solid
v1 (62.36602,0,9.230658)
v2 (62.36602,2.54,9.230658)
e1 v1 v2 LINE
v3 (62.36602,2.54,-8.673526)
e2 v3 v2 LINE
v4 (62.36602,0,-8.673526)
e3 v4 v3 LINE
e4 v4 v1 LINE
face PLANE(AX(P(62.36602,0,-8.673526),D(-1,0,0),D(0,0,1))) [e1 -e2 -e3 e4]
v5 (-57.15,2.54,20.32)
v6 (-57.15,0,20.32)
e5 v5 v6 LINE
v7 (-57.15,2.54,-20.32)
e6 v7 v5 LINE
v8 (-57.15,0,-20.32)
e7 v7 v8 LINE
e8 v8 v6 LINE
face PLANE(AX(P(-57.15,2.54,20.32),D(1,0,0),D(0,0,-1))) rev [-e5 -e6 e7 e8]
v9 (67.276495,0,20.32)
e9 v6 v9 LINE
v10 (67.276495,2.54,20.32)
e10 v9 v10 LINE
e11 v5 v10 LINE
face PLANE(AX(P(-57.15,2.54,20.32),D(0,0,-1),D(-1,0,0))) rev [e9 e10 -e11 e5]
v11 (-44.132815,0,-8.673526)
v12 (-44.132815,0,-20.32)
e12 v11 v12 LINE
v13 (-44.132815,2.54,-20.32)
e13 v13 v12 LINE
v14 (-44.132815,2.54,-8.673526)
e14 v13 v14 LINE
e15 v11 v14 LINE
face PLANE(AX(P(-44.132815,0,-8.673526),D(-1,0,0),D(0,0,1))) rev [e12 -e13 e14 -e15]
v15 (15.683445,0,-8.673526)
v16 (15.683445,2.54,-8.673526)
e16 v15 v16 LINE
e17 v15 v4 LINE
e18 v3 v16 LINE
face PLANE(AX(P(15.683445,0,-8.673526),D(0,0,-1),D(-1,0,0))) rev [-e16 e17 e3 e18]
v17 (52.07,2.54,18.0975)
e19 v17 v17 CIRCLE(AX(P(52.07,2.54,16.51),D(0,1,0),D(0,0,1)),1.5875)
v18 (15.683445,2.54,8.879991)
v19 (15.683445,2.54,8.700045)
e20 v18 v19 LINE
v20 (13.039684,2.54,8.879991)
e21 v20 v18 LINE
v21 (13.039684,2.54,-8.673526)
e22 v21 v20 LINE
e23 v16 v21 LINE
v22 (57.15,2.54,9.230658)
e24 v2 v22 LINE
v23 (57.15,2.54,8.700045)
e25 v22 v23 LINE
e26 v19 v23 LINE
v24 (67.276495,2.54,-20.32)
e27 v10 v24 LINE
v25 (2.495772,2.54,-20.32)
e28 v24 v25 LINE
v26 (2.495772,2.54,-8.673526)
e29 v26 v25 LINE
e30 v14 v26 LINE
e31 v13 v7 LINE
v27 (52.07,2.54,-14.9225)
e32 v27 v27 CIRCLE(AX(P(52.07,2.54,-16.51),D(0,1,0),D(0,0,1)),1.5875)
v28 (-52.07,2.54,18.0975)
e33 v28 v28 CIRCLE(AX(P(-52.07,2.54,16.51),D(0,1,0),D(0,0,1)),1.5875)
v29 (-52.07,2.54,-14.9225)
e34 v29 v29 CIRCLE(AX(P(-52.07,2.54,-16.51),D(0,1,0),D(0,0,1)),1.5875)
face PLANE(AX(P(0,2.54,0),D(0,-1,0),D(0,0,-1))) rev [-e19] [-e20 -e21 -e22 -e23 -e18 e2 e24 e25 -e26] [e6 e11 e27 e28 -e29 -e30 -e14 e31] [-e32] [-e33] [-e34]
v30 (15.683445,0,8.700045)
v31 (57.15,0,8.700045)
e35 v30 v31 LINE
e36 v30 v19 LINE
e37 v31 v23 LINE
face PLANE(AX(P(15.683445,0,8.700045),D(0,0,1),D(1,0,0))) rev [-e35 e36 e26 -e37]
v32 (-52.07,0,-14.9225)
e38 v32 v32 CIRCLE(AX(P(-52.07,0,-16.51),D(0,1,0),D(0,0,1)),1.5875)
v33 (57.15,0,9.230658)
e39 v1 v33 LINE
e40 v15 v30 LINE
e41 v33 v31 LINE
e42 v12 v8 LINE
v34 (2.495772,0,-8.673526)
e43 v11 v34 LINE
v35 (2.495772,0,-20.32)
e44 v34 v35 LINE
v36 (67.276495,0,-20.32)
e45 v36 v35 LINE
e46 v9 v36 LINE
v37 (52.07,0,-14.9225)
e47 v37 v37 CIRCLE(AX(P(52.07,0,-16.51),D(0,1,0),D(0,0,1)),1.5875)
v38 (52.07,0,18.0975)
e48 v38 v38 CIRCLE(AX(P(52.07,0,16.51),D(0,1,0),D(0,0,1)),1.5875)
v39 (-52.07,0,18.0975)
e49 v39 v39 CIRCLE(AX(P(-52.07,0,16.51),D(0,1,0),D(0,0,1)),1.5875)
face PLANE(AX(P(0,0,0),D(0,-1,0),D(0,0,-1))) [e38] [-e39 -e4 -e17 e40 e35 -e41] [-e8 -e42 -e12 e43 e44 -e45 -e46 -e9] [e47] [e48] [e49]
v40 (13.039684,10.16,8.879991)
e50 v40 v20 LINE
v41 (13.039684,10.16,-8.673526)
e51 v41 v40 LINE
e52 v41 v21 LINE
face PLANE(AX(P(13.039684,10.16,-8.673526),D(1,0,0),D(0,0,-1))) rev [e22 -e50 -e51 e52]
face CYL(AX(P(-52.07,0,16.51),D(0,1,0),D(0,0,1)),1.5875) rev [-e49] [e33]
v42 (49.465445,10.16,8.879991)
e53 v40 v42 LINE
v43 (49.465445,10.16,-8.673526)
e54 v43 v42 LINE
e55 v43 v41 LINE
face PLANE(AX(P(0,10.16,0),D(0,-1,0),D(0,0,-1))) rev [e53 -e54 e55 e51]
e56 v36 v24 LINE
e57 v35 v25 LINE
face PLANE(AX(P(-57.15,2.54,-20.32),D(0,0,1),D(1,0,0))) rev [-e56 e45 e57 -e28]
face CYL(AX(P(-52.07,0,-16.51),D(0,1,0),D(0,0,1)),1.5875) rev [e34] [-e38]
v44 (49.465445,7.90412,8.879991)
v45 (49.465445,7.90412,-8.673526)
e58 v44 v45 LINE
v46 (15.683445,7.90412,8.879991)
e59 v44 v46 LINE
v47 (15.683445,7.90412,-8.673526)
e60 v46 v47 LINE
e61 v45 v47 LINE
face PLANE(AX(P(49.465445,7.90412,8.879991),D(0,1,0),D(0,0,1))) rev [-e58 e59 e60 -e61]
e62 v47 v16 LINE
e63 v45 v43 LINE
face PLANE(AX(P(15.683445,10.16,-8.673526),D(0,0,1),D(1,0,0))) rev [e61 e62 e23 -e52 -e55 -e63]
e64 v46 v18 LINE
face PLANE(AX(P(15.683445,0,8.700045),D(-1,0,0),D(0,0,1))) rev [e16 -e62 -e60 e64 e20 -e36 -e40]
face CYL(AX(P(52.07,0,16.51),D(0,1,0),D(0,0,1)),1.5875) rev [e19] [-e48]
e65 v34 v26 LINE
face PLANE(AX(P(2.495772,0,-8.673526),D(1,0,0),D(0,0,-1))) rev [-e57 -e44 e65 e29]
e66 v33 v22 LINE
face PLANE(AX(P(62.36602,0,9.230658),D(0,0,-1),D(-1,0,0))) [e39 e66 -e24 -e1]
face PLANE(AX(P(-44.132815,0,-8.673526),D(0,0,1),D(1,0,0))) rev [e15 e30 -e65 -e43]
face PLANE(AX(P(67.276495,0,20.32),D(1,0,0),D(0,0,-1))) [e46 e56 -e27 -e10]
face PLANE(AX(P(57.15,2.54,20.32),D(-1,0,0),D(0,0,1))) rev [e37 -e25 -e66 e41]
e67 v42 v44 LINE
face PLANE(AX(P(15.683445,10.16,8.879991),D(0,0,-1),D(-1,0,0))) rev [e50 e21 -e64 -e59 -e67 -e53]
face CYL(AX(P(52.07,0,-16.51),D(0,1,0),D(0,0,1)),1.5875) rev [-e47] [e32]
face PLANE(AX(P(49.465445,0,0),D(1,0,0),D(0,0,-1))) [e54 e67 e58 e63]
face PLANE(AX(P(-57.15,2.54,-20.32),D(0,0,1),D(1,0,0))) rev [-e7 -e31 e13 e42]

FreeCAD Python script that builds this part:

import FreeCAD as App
import Part
import Sketcher
from FreeCAD import Vector
Q = App.Units.Quantity

doc = App.newDocument("Part")
body = doc.addObject("PartDesign::Body", "Body")

# Sketch on XZ plane
sketch1 = body.newObject("Sketcher::SketchObject", "Sketch")
sketch1.AttachmentSupport = (doc.getObject("XZ_Plane"), [""])
sketch1.MapMode = "FlatFace"
sketch1.addGeometry([
    Part.LineSegment(Vector(-57, -20, 0), Vector(-57, 20, 0)),
    Part.LineSegment(Vector(-57, 20, 0), Vector(57, 20, 0)),
    Part.LineSegment(Vector(57, 20, 0), Vector(57, -20, 0)),
    Part.LineSegment(Vector(57, -20, 0), Vector(-57, -20, 0)),
], False)
sketch1.addConstraint([
    Sketcher.Constraint("Coincident", 0, 2, 1, 1),
    Sketcher.Constraint("Coincident", 1, 2, 2, 1),
    Sketcher.Constraint("Coincident", 2, 2, 3, 1),
    Sketcher.Constraint("Coincident", 3, 2, 0, 1),
    Sketcher.Constraint("Vertical", 0),
    Sketcher.Constraint("Horizontal", 1),
    Sketcher.Constraint("Vertical", 2),
    Sketcher.Constraint("Horizontal", 3),
    Sketcher.Constraint("Symmetric", 0, 2, 2, 2, -1, 1),
    Sketcher.Constraint("DistanceX", 1, 1, 1, 2, Q("4.5 in")),
    Sketcher.Constraint("DistanceY", 0, 1, 0, 2, Q("1.6 in")),
])
pad1 = body.newObject("PartDesign::Pad", "Pad")
pad1.Profile = sketch1
pad1.Length = Q("0.1 in")
pad1.Reversed = True

# Sketch on XZ plane
sketch2 = body.newObject("Sketcher::SketchObject", "Sketch001")
sketch2.AttachmentSupport = (doc.getObject("XZ_Plane"), [""])
sketch2.MapMode = "FlatFace"
sketch2.AttachmentOffset = App.Placement(Vector(0, 0, -0.1 * 25.4), App.Rotation())
sketch2.addGeometry([
    Part.Circle(Vector(-52.1, -16.5, 0), Vector(0, 0, 1), 1.6),
    Part.Circle(Vector(52.1, -16.5, 0), Vector(0, 0, 1), 1.6),
    Part.Circle(Vector(52.1, 16.5, 0), Vector(0, 0, 1), 1.6),
    Part.Circle(Vector(-52.1, 16.5, 0), Vector(0, 0, 1), 1.6),
], False)
sketch2.addConstraint([
    Sketcher.Constraint("Equal", 0, 1),
    Sketcher.Constraint("Equal", 1, 2),
    Sketcher.Constraint("Equal", 2, 3),
    Sketcher.Constraint("Symmetric", 0, 3, 2, 3, -1, 1),
    Sketcher.Constraint("Symmetric", 1, 3, 3, 3, -1, 1),
    Sketcher.Constraint("Symmetric", 0, 3, 1, 3, -2),
    Sketcher.Constraint("Diameter", 0, Q("0.125 in")),
    Sketcher.Constraint("DistanceX", 0, 3, 1, 3, Q("4.1 in")),
    Sketcher.Constraint("DistanceY", 1, 3, 2, 3, Q("1.3 in")),
])
pocket1 = body.newObject("PartDesign::Pocket", "Pocket")
pocket1.Profile = sketch2
pocket1.Type = "ThroughAll"
pocket1.Reversed = True

# Sketch on XZ plane
sketch3 = body.newObject("Sketcher::SketchObject", "Sketch002")
sketch3.AttachmentSupport = (doc.getObject("XZ_Plane"), [""])
sketch3.MapMode = "FlatFace"
sketch3.AttachmentOffset = App.Placement(Vector(0, 0, -0.1 * 25.4), App.Rotation())
sketch3.addGeometry([
    Part.LineSegment(Vector(16, -9, 0), Vector(16, 9, 0)),  # 0
    Part.LineSegment(Vector(16, 9, 0), Vector(59, 9, 0)),  # 1
    Part.LineSegment(Vector(59, 9, 0), Vector(59, -9, 0)),  # 2
    Part.LineSegment(Vector(59, -9, 0), Vector(16, -9, 0)),  # 3
    Part.LineSegment(Vector(-44, -31, 0), Vector(-44, -9, 0)),  # 4
    Part.LineSegment(Vector(-44, -9, 0), Vector(2, -9, 0)),  # 5
    Part.LineSegment(Vector(2, -9, 0), Vector(2, -31, 0)),  # 6
    Part.LineSegment(Vector(2, -31, 0), Vector(-44, -31, 0)),  # 7
], False)
sketch3.addConstraint([
    Sketcher.Constraint("Coincident", 0, 2, 1, 1),
    Sketcher.Constraint("Coincident", 1, 2, 2, 1),
    Sketcher.Constraint("Coincident", 2, 2, 3, 1),
    Sketcher.Constraint("Coincident", 3, 2, 0, 1),
    Sketcher.Constraint("Coincident", 4, 2, 5, 1),
    Sketcher.Constraint("Coincident", 5, 2, 6, 1),
    Sketcher.Constraint("Coincident", 6, 2, 7, 1),
    Sketcher.Constraint("Coincident", 7, 2, 4, 1),
    Sketcher.Constraint("Vertical", 0),
    Sketcher.Constraint("Horizontal", 1),
    Sketcher.Constraint("Vertical", 2),
    Sketcher.Constraint("Horizontal", 3),
    Sketcher.Constraint("Vertical", 4),
    Sketcher.Constraint("Horizontal", 5),
    Sketcher.Constraint("Vertical", 6),
    Sketcher.Constraint("Horizontal", 7),
    Sketcher.Constraint("Horizontal", 3, 2, 4, 2),
    Sketcher.Constraint("DistanceX", 1, 1, 1, 2, Q("43.20191 mm")),
    Sketcher.Constraint("DistanceY", 0, 1, 0, 2, Q("17.373571 mm")),
    Sketcher.Constraint("DistanceY", 4, 1, 4, 2, Q("22.40194 mm")),
    Sketcher.Constraint("DistanceX", 5, 1, 5, 2, Q("46.628586 mm")),
    Sketcher.Constraint("DistanceX", -1, 1, 5, 2, Q("2.495772 mm")),
    Sketcher.Constraint("DistanceX", 4, 2, 3, 2, Q("59.81626 mm")),
    Sketcher.Constraint("DistanceY", -1, 1, 0, 2, Q("8.700045 mm")),
])
pocket2 = body.newObject("PartDesign::Pocket", "Pocket001")
pocket2.Profile = sketch3
pocket2.Type = "ThroughAll"
pocket2.Reversed = True

# Sketch on XZ plane
sketch4 = body.newObject("Sketcher::SketchObject", "Sketch003")
sketch4.AttachmentSupport = (doc.getObject("XZ_Plane"), [""])
sketch4.MapMode = "FlatFace"
sketch4.AttachmentOffset = App.Placement(Vector(0, 0, -0.1 * 25.4), App.Rotation())
sketch4.addGeometry([
    Part.LineSegment(Vector(13, -8.7, 0), Vector(13, 8.9, 0)),
    Part.LineSegment(Vector(13, 8.9, 0), Vector(15.7, 8.9, 0)),
    Part.LineSegment(Vector(15.7, 8.9, 0), Vector(15.7, -8.7, 0)),
    Part.LineSegment(Vector(15.7, -8.7, 0), Vector(13, -8.7, 0)),
], False)
sketch4.addConstraint([
    Sketcher.Constraint("Coincident", 0, 2, 1, 1),
    Sketcher.Constraint("Coincident", 1, 2, 2, 1),
    Sketcher.Constraint("Coincident", 2, 2, 3, 1),
    Sketcher.Constraint("Coincident", 3, 2, 0, 1),
    Sketcher.Constraint("Vertical", 0),
    Sketcher.Constraint("Horizontal", 1),
    Sketcher.Constraint("Vertical", 2),
    Sketcher.Constraint("Horizontal", 3),
    Sketcher.Constraint("DistanceX", 1, 1, 1, 2, Q("2.643761 mm")),
    Sketcher.Constraint("DistanceY", 0, 1, 0, 2, Q("17.553517 mm")),
    Sketcher.Constraint("DistanceY", -1, 1, 0, 2, Q("8.879991 mm")),
    Sketcher.Constraint("DistanceX", -1, 1, 0, 2, Q("13.039684 mm")),
])
pad2 = body.newObject("PartDesign::Pad", "Pad001")
pad2.Profile = sketch4
pad2.Length = Q("0.3 in")
pad2.Reversed = True

# Sketch on YZ plane
sketch5 = body.newObject("Sketcher::SketchObject", "Sketch004")
sketch5.AttachmentSupport = (doc.getObject("YZ_Plane"), [""])
sketch5.MapMode = "FlatFace"
sketch5.AttachmentOffset = App.Placement(Vector(0, 0, 15.683445), App.Rotation())
sketch5.addGeometry([
    Part.LineSegment(Vector(10.2, 8.9, 0), Vector(7.9, 8.9, 0)),
    Part.LineSegment(Vector(7.9, 8.9, 0), Vector(7.9, -8.7, 0)),
    Part.LineSegment(Vector(7.9, -8.7, 0), Vector(10.2, -8.7, 0)),
    Part.LineSegment(Vector(10.2, -8.7, 0), Vector(10.2, 8.9, 0)),
], False)
sketch5.addConstraint([
    Sketcher.Constraint("Coincident", 0, 2, 1, 1),
    Sketcher.Constraint("Coincident", 1, 2, 2, 1),
    Sketcher.Constraint("Coincident", 2, 2, 3, 1),
    Sketcher.Constraint("Coincident", 3, 2, 0, 1),
    Sketcher.Constraint("Horizontal", 0),
    Sketcher.Constraint("Vertical", 1),
    Sketcher.Constraint("Horizontal", 2),
    Sketcher.Constraint("Vertical", 3),
    Sketcher.Constraint("DistanceX", -1, 1, 2, 2, Q("0.4 in")),
    Sketcher.Constraint("DistanceX", 0, 2, 0, 1, Q("2.25588 mm")),
    Sketcher.Constraint("DistanceY", 1, 2, 1, 1, Q("17.553517 mm")),
    Sketcher.Constraint("DistanceY", -1, 1, 0, 2, Q("8.879991 mm")),
])
pad3 = body.newObject("PartDesign::Pad", "Pad002")
pad3.Profile = sketch5
pad3.Length = Q("1.33 in")

# Sketch on XZ plane
sketch6 = body.newObject("Sketcher::SketchObject", "Sketch005")
sketch6.AttachmentSupport = (doc.getObject("XZ_Plane"), [""])
sketch6.MapMode = "FlatFace"
sketch6.AttachmentOffset = App.Placement(Vector(0, 0, -0.1 * 25.4), App.Rotation())
sketch6.addGeometry([
    Part.LineSegment(Vector(57, -20, 0), Vector(57, -9, 0)),  # 0
    Part.LineSegment(Vector(57, -9, 0), Vector(62, -9, 0)),  # 1
    Part.LineSegment(Vector(62, -9, 0), Vector(62, 9, 0)),  # 2
    Part.LineSegment(Vector(62, 9, 0), Vector(57, 9, 0)),  # 3
    Part.LineSegment(Vector(57, 9, 0), Vector(57, 20, 0)),  # 4
    Part.LineSegment(Vector(57, 20, 0), Vector(67, 20, 0)),  # 5
    Part.LineSegment(Vector(67, 20, 0), Vector(67, -20, 0)),  # 6
    Part.LineSegment(Vector(67, -20, 0), Vector(57, -20, 0)),  # 7
], False)
sketch6.addConstraint([
    Sketcher.Constraint("Coincident", 0, 2, 1, 1),
    Sketcher.Constraint("Coincident", 1, 2, 2, 1),
    Sketcher.Constraint("Coincident", 2, 2, 3, 1),
    Sketcher.Constraint("Coincident", 3, 2, 4, 1),
    Sketcher.Constraint("Coincident", 4, 2, 5, 1),
    Sketcher.Constraint("Coincident", 5, 2, 6, 1),
    Sketcher.Constraint("Coincident", 6, 2, 7, 1),
    Sketcher.Constraint("Coincident", 7, 2, 0, 1),
    Sketcher.Constraint("Vertical", 0),
    Sketcher.Constraint("Horizontal", 1),
    Sketcher.Constraint("Vertical", 2),
    Sketcher.Constraint("Horizontal", 3),
    Sketcher.Constraint("Vertical", 4),
    Sketcher.Constraint("Horizontal", 5),
    Sketcher.Constraint("Vertical", 6),
    Sketcher.Constraint("Horizontal", 7),
    Sketcher.Constraint("Symmetric", 4, 2, 7, 2, -1),
    Sketcher.Constraint("DistanceY", 6, 2, 6, 1, Q("1.6 in")),
    Sketcher.Constraint("DistanceX", -1, 1, 0, 2, Q("2.25 in")),
    Sketcher.Constraint("DistanceX", 1, 1, 1, 2, Q("5.21602 mm")),
    Sketcher.Constraint("DistanceX", 5, 1, 5, 2, Q("10.126495 mm")),
    Sketcher.Constraint("DistanceY", 0, 1, 0, 2, Q("11.646474 mm")),
    Sketcher.Constraint("DistanceY", 2, 1, 2, 2, Q("17.904184 mm")),
])
pad4 = body.newObject("PartDesign::Pad", "Pad003")
pad4.Profile = sketch6
pad4.Length = Q("0.1 in")

doc.recompute()
